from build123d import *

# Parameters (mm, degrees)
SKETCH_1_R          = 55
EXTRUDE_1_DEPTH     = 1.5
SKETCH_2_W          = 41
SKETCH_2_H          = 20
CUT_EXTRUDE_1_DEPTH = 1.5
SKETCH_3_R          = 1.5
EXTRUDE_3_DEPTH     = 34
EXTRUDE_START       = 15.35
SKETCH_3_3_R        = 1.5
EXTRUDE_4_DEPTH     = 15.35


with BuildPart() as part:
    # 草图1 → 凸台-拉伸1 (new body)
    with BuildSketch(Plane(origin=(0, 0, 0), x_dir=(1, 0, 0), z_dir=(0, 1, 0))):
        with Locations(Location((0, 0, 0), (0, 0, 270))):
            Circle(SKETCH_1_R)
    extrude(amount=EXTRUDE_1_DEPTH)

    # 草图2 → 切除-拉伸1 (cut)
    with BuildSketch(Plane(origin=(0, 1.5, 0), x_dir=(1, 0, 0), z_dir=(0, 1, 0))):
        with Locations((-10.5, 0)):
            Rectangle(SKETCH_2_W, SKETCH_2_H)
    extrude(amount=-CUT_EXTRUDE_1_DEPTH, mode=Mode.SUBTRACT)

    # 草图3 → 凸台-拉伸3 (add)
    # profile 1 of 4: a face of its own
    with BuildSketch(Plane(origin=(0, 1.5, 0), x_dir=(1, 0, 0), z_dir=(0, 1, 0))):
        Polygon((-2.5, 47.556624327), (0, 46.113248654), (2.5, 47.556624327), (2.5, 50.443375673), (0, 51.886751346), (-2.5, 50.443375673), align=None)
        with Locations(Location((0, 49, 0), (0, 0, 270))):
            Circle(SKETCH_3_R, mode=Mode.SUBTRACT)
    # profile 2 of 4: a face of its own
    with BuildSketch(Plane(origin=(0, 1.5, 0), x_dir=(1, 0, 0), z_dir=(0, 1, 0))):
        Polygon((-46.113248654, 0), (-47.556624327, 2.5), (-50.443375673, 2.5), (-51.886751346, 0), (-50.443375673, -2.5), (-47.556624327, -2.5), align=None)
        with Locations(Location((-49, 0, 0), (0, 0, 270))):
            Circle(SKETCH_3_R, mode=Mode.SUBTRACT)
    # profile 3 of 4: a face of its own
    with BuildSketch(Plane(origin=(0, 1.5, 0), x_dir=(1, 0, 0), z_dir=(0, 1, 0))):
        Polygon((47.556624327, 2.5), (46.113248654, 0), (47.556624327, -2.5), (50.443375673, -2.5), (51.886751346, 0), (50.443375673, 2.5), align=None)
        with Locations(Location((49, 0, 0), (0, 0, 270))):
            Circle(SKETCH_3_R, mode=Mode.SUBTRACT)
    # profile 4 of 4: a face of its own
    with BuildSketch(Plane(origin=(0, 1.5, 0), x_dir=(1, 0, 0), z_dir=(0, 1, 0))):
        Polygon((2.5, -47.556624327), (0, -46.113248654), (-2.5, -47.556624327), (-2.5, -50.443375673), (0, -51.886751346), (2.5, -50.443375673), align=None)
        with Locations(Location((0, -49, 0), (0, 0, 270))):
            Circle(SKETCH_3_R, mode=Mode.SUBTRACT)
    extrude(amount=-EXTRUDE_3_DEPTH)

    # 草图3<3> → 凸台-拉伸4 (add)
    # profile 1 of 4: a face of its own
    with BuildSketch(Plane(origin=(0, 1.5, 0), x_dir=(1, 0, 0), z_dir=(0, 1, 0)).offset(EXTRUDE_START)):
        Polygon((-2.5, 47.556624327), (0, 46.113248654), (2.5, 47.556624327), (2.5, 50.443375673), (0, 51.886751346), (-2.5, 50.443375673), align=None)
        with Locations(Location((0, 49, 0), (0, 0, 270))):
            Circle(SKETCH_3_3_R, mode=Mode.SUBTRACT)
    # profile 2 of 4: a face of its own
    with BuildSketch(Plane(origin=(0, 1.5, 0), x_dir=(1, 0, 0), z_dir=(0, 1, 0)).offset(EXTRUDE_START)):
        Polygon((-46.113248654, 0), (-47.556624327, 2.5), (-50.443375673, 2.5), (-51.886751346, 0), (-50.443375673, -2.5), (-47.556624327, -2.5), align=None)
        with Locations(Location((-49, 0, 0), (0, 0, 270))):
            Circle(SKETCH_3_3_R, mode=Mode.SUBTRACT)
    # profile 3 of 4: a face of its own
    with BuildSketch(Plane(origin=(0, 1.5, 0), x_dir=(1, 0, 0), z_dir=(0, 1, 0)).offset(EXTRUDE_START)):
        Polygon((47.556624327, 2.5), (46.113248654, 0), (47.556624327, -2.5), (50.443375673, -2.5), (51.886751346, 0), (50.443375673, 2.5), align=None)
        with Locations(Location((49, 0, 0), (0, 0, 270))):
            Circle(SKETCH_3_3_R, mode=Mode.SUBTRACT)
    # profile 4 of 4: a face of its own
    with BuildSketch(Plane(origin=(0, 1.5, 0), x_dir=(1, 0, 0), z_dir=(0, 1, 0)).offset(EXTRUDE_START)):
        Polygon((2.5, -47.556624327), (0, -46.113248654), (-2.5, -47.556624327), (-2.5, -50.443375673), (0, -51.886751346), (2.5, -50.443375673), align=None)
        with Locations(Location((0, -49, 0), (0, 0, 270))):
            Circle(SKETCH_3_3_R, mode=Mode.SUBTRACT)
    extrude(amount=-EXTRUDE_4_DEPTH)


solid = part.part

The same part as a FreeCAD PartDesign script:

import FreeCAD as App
import Part
import Sketcher

V = App.Vector
Q = App.Units.Quantity

doc = App.newDocument("Part")
body = doc.addObject("PartDesign::Body", "Body")

# Sketch on XZ plane
sketch1 = doc.addObject("Sketcher::SketchObject", "Sketch")
body.addObject(sketch1)
sketch1.AttachmentSupport = (doc.XZ_Plane, [""])
sketch1.MapMode = "FlatFace"
sketch1.addGeometry(Part.Circle(V(0, 0, 0), V(0, 0, 1), 55), False)
sketch1.addConstraint(Sketcher.Constraint("Coincident", 0, 3, -1, 1))
sketch1.addConstraint(Sketcher.Constraint("Diameter", 0, Q("110 mm")))
pad1 = doc.addObject("PartDesign::Pad", "Pad")
body.addObject(pad1)
pad1.Profile = sketch1
pad1.Length = 1.5
pad1.Reversed = True

# Sketch on XZ plane
sketch2 = doc.addObject("Sketcher::SketchObject", "Sketch001")
body.addObject(sketch2)
sketch2.AttachmentSupport = (doc.XZ_Plane, [""])
sketch2.MapMode = "FlatFace"
sketch2.AttachmentOffset = App.Placement(V(0, 0, -1.5), App.Rotation())
sketch2.addGeometry(Part.LineSegment(V(-31, -10, 0), V(-31, 10, 0)), False)
sketch2.addGeometry(Part.LineSegment(V(-31, 10, 0), V(10, 10, 0)), False)
sketch2.addGeometry(Part.LineSegment(V(10, 10, 0), V(10, -10, 0)), False)
sketch2.addGeometry(Part.LineSegment(V(10, -10, 0), V(-31, -10, 0)), False)
sketch2.addConstraint(Sketcher.Constraint("Coincident", 0, 2, 1, 1))
sketch2.addConstraint(Sketcher.Constraint("Coincident", 1, 2, 2, 1))
sketch2.addConstraint(Sketcher.Constraint("Coincident", 2, 2, 3, 1))
sketch2.addConstraint(Sketcher.Constraint("Coincident", 3, 2, 0, 1))
sketch2.addConstraint(Sketcher.Constraint("Vertical", 0))
sketch2.addConstraint(Sketcher.Constraint("Horizontal", 1))
sketch2.addConstraint(Sketcher.Constraint("Vertical", 2))
sketch2.addConstraint(Sketcher.Constraint("Horizontal", 3))
sketch2.addConstraint(Sketcher.Constraint("DistanceX", 1, 1, 1, 2, Q("41 mm")))
sketch2.addConstraint(Sketcher.Constraint("DistanceY", 0, 1, 0, 2, Q("20 mm")))
sketch2.addConstraint(Sketcher.Constraint("DistanceX", 0, 2, -1, 1, Q("31 mm")))
sketch2.addConstraint(Sketcher.Constraint("DistanceY", -1, 1, 0, 2, Q("10 mm")))
pocket1 = doc.addObject("PartDesign::Pocket", "Pocket")
body.addObject(pocket1)
pocket1.Profile = sketch2
pocket1.Length = 1.5
pocket1.Reversed = True

# Sketch on XZ plane
sketch3 = doc.addObject("Sketcher::SketchObject", "Sketch002")
body.addObject(sketch3)
sketch3.AttachmentSupport = (doc.XZ_Plane, [""])
sketch3.MapMode = "FlatFace"
sketch3.AttachmentOffset = App.Placement(V(0, 0, -1.5), App.Rotation())
sketch3.addGeometry(Part.LineSegment(V(-2.5, -47.6, 0), V(0, -46.1, 0)), False)
sketch3.addGeometry(Part.LineSegment(V(0, -46.1, 0), V(2.5, -47.6, 0)), False)
sketch3.addGeometry(Part.LineSegment(V(2.5, -47.6, 0), V(2.5, -50.4, 0)), False)
sketch3.addGeometry(Part.LineSegment(V(2.5, -50.4, 0), V(0, -51.9, 0)), False)
sketch3.addGeometry(Part.LineSegment(V(0, -51.9, 0), V(-2.5, -50.4, 0)), False)
sketch3.addGeometry(Part.LineSegment(V(-2.5, -50.4, 0), V(-2.5, -47.6, 0)), False)
sketch3.addGeometry(Part.Circle(V(0, -49, 0), V(0, 0, 1), 1.5), False)
sketch3.addGeometry(Part.LineSegment(V(-46.1, 0, 0), V(-47.6, -2.5, 0)), False)
sketch3.addGeometry(Part.LineSegment(V(-47.6, -2.5, 0), V(-50.4, -2.5, 0)), False)
sketch3.addGeometry(Part.LineSegment(V(-50.4, -2.5, 0), V(-51.9, 0, 0)), False)
sketch3.addGeometry(Part.LineSegment(V(-51.9, 0, 0), V(-50.4, 2.5, 0)), False)
sketch3.addGeometry(Part.LineSegment(V(-50.4, 2.5, 0), V(-47.6, 2.5, 0)), False)
sketch3.addGeometry(Part.LineSegment(V(-47.6, 2.5, 0), V(-46.1, 0, 0)), False)
sketch3.addGeometry(Part.Circle(V(-49, 0, 0), V(0, 0, 1), 1.5), False)
sketch3.addGeometry(Part.LineSegment(V(47.6, -2.5, 0), V(46.1, 0, 0)), False)
sketch3.addGeometry(Part.LineSegment(V(46.1, 0, 0), V(47.6, 2.5, 0)), False)
sketch3.addGeometry(Part.LineSegment(V(47.6, 2.5, 0), V(50.4, 2.5, 0)), False)
sketch3.addGeometry(Part.LineSegment(V(50.4, 2.5, 0), V(51.9, 0, 0)), False)
sketch3.addGeometry(Part.LineSegment(V(51.9, 0, 0), V(50.4, -2.5, 0)), False)
sketch3.addGeometry(Part.LineSegment(V(50.4, -2.5, 0), V(47.6, -2.5, 0)), False)
sketch3.addGeometry(Part.Circle(V(49, 0, 0), V(0, 0, 1), 1.5), False)
sketch3.addGeometry(Part.LineSegment(V(2.5, 47.6, 0), V(0, 46.1, 0)), False)
sketch3.addGeometry(Part.LineSegment(V(0, 46.1, 0), V(-2.5, 47.6, 0)), False)
sketch3.addGeometry(Part.LineSegment(V(-2.5, 47.6, 0), V(-2.5, 50.4, 0)), False)
sketch3.addGeometry(Part.LineSegment(V(-2.5, 50.4, 0), V(0, 51.9, 0)), False)
sketch3.addGeometry(Part.LineSegment(V(0, 51.9, 0), V(2.5, 50.4, 0)), False)
sketch3.addGeometry(Part.LineSegment(V(2.5, 50.4, 0), V(2.5, 47.6, 0)), False)
sketch3.addGeometry(Part.Circle(V(0, 49, 0), V(0, 0, 1), 1.5), False)
sketch3.addConstraint(Sketcher.Constraint("Coincident", 0, 2, 1, 1))
sketch3.addConstraint(Sketcher.Constraint("Coincident", 1, 2, 2, 1))
sketch3.addConstraint(Sketcher.Constraint("Coincident", 2, 2, 3, 1))
sketch3.addConstraint(Sketcher.Constraint("Coincident", 3, 2, 4, 1))
sketch3.addConstraint(Sketcher.Constraint("Coincident", 4, 2, 5, 1))
sketch3.addConstraint(Sketcher.Constraint("Coincident", 5, 2, 0, 1))
sketch3.addConstraint(Sketcher.Constraint("Coincident", 7, 2, 8, 1))
sketch3.addConstraint(Sketcher.Constraint("Coincident", 8, 2, 9, 1))
sketch3.addConstraint(Sketcher.Constraint("Coincident", 9, 2, 10, 1))
sketch3.addConstraint(Sketcher.Constraint("Coincident", 10, 2, 11, 1))
sketch3.addConstraint(Sketcher.Constraint("Coincident", 11, 2, 12, 1))
sketch3.addConstraint(Sketcher.Constraint("Coincident", 12, 2, 7, 1))
sketch3.addConstraint(Sketcher.Constraint("Coincident", 14, 2, 15, 1))
sketch3.addConstraint(Sketcher.Constraint("Coincident", 15, 2, 16, 1))
sketch3.addConstraint(Sketcher.Constraint("Coincident", 16, 2, 17, 1))
sketch3.addConstraint(Sketcher.Constraint("Coincident", 17, 2, 18, 1))
sketch3.addConstraint(Sketcher.Constraint("Coincident", 18, 2, 19, 1))
sketch3.addConstraint(Sketcher.Constraint("Coincident", 19, 2, 14, 1))
sketch3.addConstraint(Sketcher.Constraint("Coincident", 21, 2, 22, 1))
sketch3.addConstraint(Sketcher.Constraint("Coincident", 22, 2, 23, 1))
sketch3.addConstraint(Sketcher.Constraint("Coincident", 23, 2, 24, 1))
sketch3.addConstraint(Sketcher.Constraint("Coincident", 24, 2, 25, 1))
sketch3.addConstraint(Sketcher.Constraint("Coincident", 25, 2, 26, 1))
sketch3.addConstraint(Sketcher.Constraint("Coincident", 26, 2, 21, 1))
sketch3.addConstraint(Sketcher.Constraint("Vertical", 2))
sketch3.addConstraint(Sketcher.Constraint("Vertical", 5))
sketch3.addConstraint(Sketcher.Constraint("Horizontal", 8))
sketch3.addConstraint(Sketcher.Constraint("Horizontal", 11))
sketch3.addConstraint(Sketcher.Constraint("Horizontal", 16))
sketch3.addConstraint(Sketcher.Constraint("Horizontal", 19))
sketch3.addConstraint(Sketcher.Constraint("Vertical", 23))
sketch3.addConstraint(Sketcher.Constraint("Vertical", 26))
sketch3.addConstraint(Sketcher.Constraint("Equal", 6, 13))
sketch3.addConstraint(Sketcher.Constraint("Equal", 13, 20))
sketch3.addConstraint(Sketcher.Constraint("Equal", 20, 27))
sketch3.addConstraint(Sketcher.Constraint("Symmetric", 13, 3, 20, 3, -1, 1))
sketch3.addConstraint(Sketcher.Constraint("Symmetric", 6, 3, 27, 3, -1, 1))
sketch3.addConstraint(Sketcher.Constraint("Symmetric", 12, 2, 14, 2, -1, 1))
sketch3.addConstraint(Sketcher.Constraint("Symmetric", 7, 2, 15, 2, -1, 1))
sketch3.addConstraint(Sketcher.Constraint("Symmetric", 9, 2, 17, 2, -1, 1))
sketch3.addConstraint(Sketcher.Constraint("Symmetric", 10, 2, 18, 2, -1, 1))
sketch3.addConstraint(Sketcher.Constraint("Symmetric", 0, 2, 21, 2, -1, 1))
sketch3.addConstraint(Sketcher.Constraint("Symmetric", 1, 2, 22, 2, -1, 1))
sketch3.addConstraint(Sketcher.Constraint("Symmetric", 3, 2, 24, 2, -1, 1))
sketch3.addConstraint(Sketcher.Constraint("Symmetric", 4, 2, 25, 2, -1, 1))
sketch3.addConstraint(Sketcher.Constraint("Symmetric", 2, 2, 4, 2, -2))
sketch3.addConstraint(Sketcher.Constraint("Symmetric", 11, 2, 15, 2, -2))
sketch3.addConstraint(Sketcher.Constraint("PointOnObject", 6, 3, -2))
sketch3.addConstraint(Sketcher.Constraint("PointOnObject", 13, 3, -1))
sketch3.addConstraint(Sketcher.Constraint("PointOnObject", 0, 2, -2))
sketch3.addConstraint(Sketcher.Constraint("PointOnObject", 3, 2, -2))
sketch3.addConstraint(Sketcher.Constraint("PointOnObject", 9, 2, -1))
sketch3.addConstraint(Sketcher.Constraint("PointOnObject", 12, 2, -1))
sketch3.addConstraint(Sketcher.Constraint("Parallel", 0, 3))
sketch3.addConstraint(Sketcher.Constraint("Parallel", 1, 4))
sketch3.addConstraint(Sketcher.Constraint("Perpendicular", 4, 7))
sketch3.addConstraint(Sketcher.Constraint("Perpendicular", 3, 9))
sketch3.addConstraint(Sketcher.Constraint("Parallel", 7, 10))
sketch3.addConstraint(Sketcher.Constraint("Parallel", 12, 14))
sketch3.addConstraint(Sketcher.Constraint("Parallel", 14, 17))
sketch3.addConstraint(Sketcher.Constraint("Perpendicular", 17, 21))
sketch3.addConstraint(Sketcher.Constraint("Parallel", 21, 24))
sketch3.addConstraint(Sketcher.Constraint("Equal", 19, 2))
sketch3.addConstraint(Sketcher.Constraint("Equal", 4, 7))
sketch3.addConstraint(Sketcher.Constraint("Diameter", 6, Q("3 mm")))
sketch3.addConstraint(Sketcher.Constraint("Angle", 0, Q("30 deg")))
sketch3.addConstraint(Sketcher.Constraint("DistanceY", 6, 3, -1, 1, Q("49 mm")))
sketch3.addConstraint(Sketcher.Constraint("DistanceX", 13, 3, -1, 1, Q("49 mm")))
sketch3.addConstraint(Sketcher.Constraint("DistanceX", 4, 2, 2, 2, Q("5 mm")))
sketch3.addConstraint(Sketcher.Constraint("DistanceX", 8, 2, 8, 1, Q("2.886751 mm")))
sketch3.addConstraint(Sketcher.Constraint("DistanceY", 0, 2, -1, 1, Q("46.113249 mm")))
sketch3.addConstraint(Sketcher.Constraint("DistanceX", 9, 2, -1, 1, Q("51.886751 mm")))
pad2 = doc.addObject("PartDesign::Pad", "Pad001")
body.addObject(pad2)
pad2.Profile = sketch3
pad2.Length = 34

# Sketch on XZ plane
sketch4 = doc.addObject("Sketcher::SketchObject", "Sketch003")
body.addObject(sketch4)
sketch4.AttachmentSupport = (doc.XZ_Plane, [""])
sketch4.MapMode = "FlatFace"
sketch4.AttachmentOffset = App.Placement(V(0, 0, -16.85), App.Rotation())
sketch4.addGeometry(Part.LineSegment(V(-2.5, -47.6, 0), V(0, -46.1, 0)), False)
sketch4.addGeometry(Part.LineSegment(V(0, -46.1, 0), V(2.5, -47.6, 0)), False)
sketch4.addGeometry(Part.LineSegment(V(2.5, -47.6, 0), V(2.5, -50.4, 0)), False)
sketch4.addGeometry(Part.LineSegment(V(2.5, -50.4, 0), V(0, -51.9, 0)), False)
sketch4.addGeometry(Part.LineSegment(V(0, -51.9, 0), V(-2.5, -50.4, 0)), False)
sketch4.addGeometry(Part.LineSegment(V(-2.5, -50.4, 0), V(-2.5, -47.6, 0)), False)
sketch4.addGeometry(Part.Circle(V(0, -49, 0), V(0, 0, 1), 1.5), False)
sketch4.addGeometry(Part.LineSegment(V(-46.1, 0, 0), V(-47.6, -2.5, 0)), False)
sketch4.addGeometry(Part.LineSegment(V(-47.6, -2.5, 0), V(-50.4, -2.5, 0)), False)
sketch4.addGeometry(Part.LineSegment(V(-50.4, -2.5, 0), V(-51.9, 0, 0)), False)
sketch4.addGeometry(Part.LineSegment(V(-51.9, 0, 0), V(-50.4, 2.5, 0)), False)
sketch4.addGeometry(Part.LineSegment(V(-50.4, 2.5, 0), V(-47.6, 2.5, 0)), False)
sketch4.addGeometry(Part.LineSegment(V(-47.6, 2.5, 0), V(-46.1, 0, 0)), False)
sketch4.addGeometry(Part.Circle(V(-49, 0, 0), V(0, 0, 1), 1.5), False)
sketch4.addGeometry(Part.LineSegment(V(47.6, -2.5, 0), V(46.1, 0, 0)), False)
sketch4.addGeometry(Part.LineSegment(V(46.1, 0, 0), V(47.6, 2.5, 0)), False)
sketch4.addGeometry(Part.LineSegment(V(47.6, 2.5, 0), V(50.4, 2.5, 0)), False)
sketch4.addGeometry(Part.LineSegment(V(50.4, 2.5, 0), V(51.9, 0, 0)), False)
sketch4.addGeometry(Part.LineSegment(V(51.9, 0, 0), V(50.4, -2.5, 0)), False)
sketch4.addGeometry(Part.LineSegment(V(50.4, -2.5, 0), V(47.6, -2.5, 0)), False)
sketch4.addGeometry(Part.Circle(V(49, 0, 0), V(0, 0, 1), 1.5), False)
sketch4.addGeometry(Part.LineSegment(V(2.5, 47.6, 0), V(0, 46.1, 0)), False)
sketch4.addGeometry(Part.LineSegment(V(0, 46.1, 0), V(-2.5, 47.6, 0)), False)
sketch4.addGeometry(Part.LineSegment(V(-2.5, 47.6, 0), V(-2.5, 50.4, 0)), False)
sketch4.addGeometry(Part.LineSegment(V(-2.5, 50.4, 0), V(0, 51.9, 0)), False)
sketch4.addGeometry(Part.LineSegment(V(0, 51.9, 0), V(2.5, 50.4, 0)), False)
sketch4.addGeometry(Part.LineSegment(V(2.5, 50.4, 0), V(2.5, 47.6, 0)), False)
sketch4.addGeometry(Part.Circle(V(0, 49, 0), V(0, 0, 1), 1.5), False)
sketch4.addConstraint(Sketcher.Constraint("Coincident", 0, 2, 1, 1))
sketch4.addConstraint(Sketcher.Constraint("Coincident", 1, 2, 2, 1))
sketch4.addConstraint(Sketcher.Constraint("Coincident", 2, 2, 3, 1))
sketch4.addConstraint(Sketcher.Constraint("Coincident", 3, 2, 4, 1))
sketch4.addConstraint(Sketcher.Constraint("Coincident", 4, 2, 5, 1))
sketch4.addConstraint(Sketcher.Constraint("Coincident", 5, 2, 0, 1))
sketch4.addConstraint(Sketcher.Constraint("Coincident", 7, 2, 8, 1))
sketch4.addConstraint(Sketcher.Constraint("Coincident", 8, 2, 9, 1))
sketch4.addConstraint(Sketcher.Constraint("Coincident", 9, 2, 10, 1))
sketch4.addConstraint(Sketcher.Constraint("Coincident", 10, 2, 11, 1))
sketch4.addConstraint(Sketcher.Constraint("Coincident", 11, 2, 12, 1))
sketch4.addConstraint(Sketcher.Constraint("Coincident", 12, 2, 7, 1))
sketch4.addConstraint(Sketcher.Constraint("Coincident", 14, 2, 15, 1))
sketch4.addConstraint(Sketcher.Constraint("Coincident", 15, 2, 16, 1))
sketch4.addConstraint(Sketcher.Constraint("Coincident", 16, 2, 17, 1))
sketch4.addConstraint(Sketcher.Constraint("Coincident", 17, 2, 18, 1))
sketch4.addConstraint(Sketcher.Constraint("Coincident", 18, 2, 19, 1))
sketch4.addConstraint(Sketcher.Constraint("Coincident", 19, 2, 14, 1))
sketch4.addConstraint(Sketcher.Constraint("Coincident", 21, 2, 22, 1))
sketch4.addConstraint(Sketcher.Constraint("Coincident", 22, 2, 23, 1))
sketch4.addConstraint(Sketcher.Constraint("Coincident", 23, 2, 24, 1))
sketch4.addConstraint(Sketcher.Constraint("Coincident", 24, 2, 25, 1))
sketch4.addConstraint(Sketcher.Constraint("Coincident", 25, 2, 26, 1))
sketch4.addConstraint(Sketcher.Constraint("Coincident", 26, 2, 21, 1))
sketch4.addConstraint(Sketcher.Constraint("Vertical", 2))
sketch4.addConstraint(Sketcher.Constraint("Vertical", 5))
sketch4.addConstraint(Sketcher.Constraint("Horizontal", 8))
sketch4.addConstraint(Sketcher.Constraint("Horizontal", 11))
sketch4.addConstraint(Sketcher.Constraint("Horizontal", 16))
sketch4.addConstraint(Sketcher.Constraint("Horizontal", 19))
sketch4.addConstraint(Sketcher.Constraint("Vertical", 23))
sketch4.addConstraint(Sketcher.Constraint("Vertical", 26))
sketch4.addConstraint(Sketcher.Constraint("Equal", 6, 13))
sketch4.addConstraint(Sketcher.Constraint("Equal", 13, 20))
sketch4.addConstraint(Sketcher.Constraint("Equal", 20, 27))
sketch4.addConstraint(Sketcher.Constraint("Symmetric", 13, 3, 20, 3, -1, 1))
sketch4.addConstraint(Sketcher.Constraint("Symmetric", 6, 3, 27, 3, -1, 1))
sketch4.addConstraint(Sketcher.Constraint("Symmetric", 12, 2, 14, 2, -1, 1))
sketch4.addConstraint(Sketcher.Constraint("Symmetric", 7, 2, 15, 2, -1, 1))
sketch4.addConstraint(Sketcher.Constraint("Symmetric", 9, 2, 17, 2, -1, 1))
sketch4.addConstraint(Sketcher.Constraint("Symmetric", 10, 2, 18, 2, -1, 1))
sketch4.addConstraint(Sketcher.Constraint("Symmetric", 0, 2, 21, 2, -1, 1))
sketch4.addConstraint(Sketcher.Constraint("Symmetric", 1, 2, 22, 2, -1, 1))
sketch4.addConstraint(Sketcher.Constraint("Symmetric", 3, 2, 24, 2, -1, 1))
sketch4.addConstraint(Sketcher.Constraint("Symmetric", 4, 2, 25, 2, -1, 1))
sketch4.addConstraint(Sketcher.Constraint("Symmetric", 2, 2, 4, 2, -2))
sketch4.addConstraint(Sketcher.Constraint("Symmetric", 11, 2, 15, 2, -2))
sketch4.addConstraint(Sketcher.Constraint("PointOnObject", 6, 3, -2))
sketch4.addConstraint(Sketcher.Constraint("PointOnObject", 13, 3, -1))
sketch4.addConstraint(Sketcher.Constraint("PointOnObject", 0, 2, -2))
sketch4.addConstraint(Sketcher.Constraint("PointOnObject", 3, 2, -2))
sketch4.addConstraint(Sketcher.Constraint("PointOnObject", 9, 2, -1))
sketch4.addConstraint(Sketcher.Constraint("PointOnObject", 12, 2, -1))
sketch4.addConstraint(Sketcher.Constraint("Parallel", 0, 3))
sketch4.addConstraint(Sketcher.Constraint("Parallel", 1, 4))
sketch4.addConstraint(Sketcher.Constraint("Perpendicular", 4, 7))
sketch4.addConstraint(Sketcher.Constraint("Perpendicular", 3, 9))
sketch4.addConstraint(Sketcher.Constraint("Parallel", 7, 10))
sketch4.addConstraint(Sketcher.Constraint("Parallel", 12, 14))
sketch4.addConstraint(Sketcher.Constraint("Parallel", 14, 17))
sketch4.addConstraint(Sketcher.Constraint("Perpendicular", 17, 21))
sketch4.addConstraint(Sketcher.Constraint("Parallel", 21, 24))
sketch4.addConstraint(Sketcher.Constraint("Equal", 19, 2))
sketch4.addConstraint(Sketcher.Constraint("Equal", 4, 7))
sketch4.addConstraint(Sketcher.Constraint("Diameter", 6, Q("3 mm")))
sketch4.addConstraint(Sketcher.Constraint("Angle", 0, Q("30 deg")))
sketch4.addConstraint(Sketcher.Constraint("DistanceY", 6, 3, -1, 1, Q("49 mm")))
sketch4.addConstraint(Sketcher.Constraint("DistanceX", 13, 3, -1, 1, Q("49 mm")))
sketch4.addConstraint(Sketcher.Constraint("DistanceX", 4, 2, 2, 2, Q("5 mm")))
sketch4.addConstraint(Sketcher.Constraint("DistanceX", 8, 2, 8, 1, Q("2.886751 mm")))
sketch4.addConstraint(Sketcher.Constraint("DistanceY", 0, 2, -1, 1, Q("46.113249 mm")))
sketch4.addConstraint(Sketcher.Constraint("DistanceX", 9, 2, -1, 1, Q("51.886751 mm")))
pad3 = doc.addObject("PartDesign::Pad", "Pad002")
body.addObject(pad3)
pad3.Profile = sketch4
pad3.Length = 15.35

doc.recompute()
